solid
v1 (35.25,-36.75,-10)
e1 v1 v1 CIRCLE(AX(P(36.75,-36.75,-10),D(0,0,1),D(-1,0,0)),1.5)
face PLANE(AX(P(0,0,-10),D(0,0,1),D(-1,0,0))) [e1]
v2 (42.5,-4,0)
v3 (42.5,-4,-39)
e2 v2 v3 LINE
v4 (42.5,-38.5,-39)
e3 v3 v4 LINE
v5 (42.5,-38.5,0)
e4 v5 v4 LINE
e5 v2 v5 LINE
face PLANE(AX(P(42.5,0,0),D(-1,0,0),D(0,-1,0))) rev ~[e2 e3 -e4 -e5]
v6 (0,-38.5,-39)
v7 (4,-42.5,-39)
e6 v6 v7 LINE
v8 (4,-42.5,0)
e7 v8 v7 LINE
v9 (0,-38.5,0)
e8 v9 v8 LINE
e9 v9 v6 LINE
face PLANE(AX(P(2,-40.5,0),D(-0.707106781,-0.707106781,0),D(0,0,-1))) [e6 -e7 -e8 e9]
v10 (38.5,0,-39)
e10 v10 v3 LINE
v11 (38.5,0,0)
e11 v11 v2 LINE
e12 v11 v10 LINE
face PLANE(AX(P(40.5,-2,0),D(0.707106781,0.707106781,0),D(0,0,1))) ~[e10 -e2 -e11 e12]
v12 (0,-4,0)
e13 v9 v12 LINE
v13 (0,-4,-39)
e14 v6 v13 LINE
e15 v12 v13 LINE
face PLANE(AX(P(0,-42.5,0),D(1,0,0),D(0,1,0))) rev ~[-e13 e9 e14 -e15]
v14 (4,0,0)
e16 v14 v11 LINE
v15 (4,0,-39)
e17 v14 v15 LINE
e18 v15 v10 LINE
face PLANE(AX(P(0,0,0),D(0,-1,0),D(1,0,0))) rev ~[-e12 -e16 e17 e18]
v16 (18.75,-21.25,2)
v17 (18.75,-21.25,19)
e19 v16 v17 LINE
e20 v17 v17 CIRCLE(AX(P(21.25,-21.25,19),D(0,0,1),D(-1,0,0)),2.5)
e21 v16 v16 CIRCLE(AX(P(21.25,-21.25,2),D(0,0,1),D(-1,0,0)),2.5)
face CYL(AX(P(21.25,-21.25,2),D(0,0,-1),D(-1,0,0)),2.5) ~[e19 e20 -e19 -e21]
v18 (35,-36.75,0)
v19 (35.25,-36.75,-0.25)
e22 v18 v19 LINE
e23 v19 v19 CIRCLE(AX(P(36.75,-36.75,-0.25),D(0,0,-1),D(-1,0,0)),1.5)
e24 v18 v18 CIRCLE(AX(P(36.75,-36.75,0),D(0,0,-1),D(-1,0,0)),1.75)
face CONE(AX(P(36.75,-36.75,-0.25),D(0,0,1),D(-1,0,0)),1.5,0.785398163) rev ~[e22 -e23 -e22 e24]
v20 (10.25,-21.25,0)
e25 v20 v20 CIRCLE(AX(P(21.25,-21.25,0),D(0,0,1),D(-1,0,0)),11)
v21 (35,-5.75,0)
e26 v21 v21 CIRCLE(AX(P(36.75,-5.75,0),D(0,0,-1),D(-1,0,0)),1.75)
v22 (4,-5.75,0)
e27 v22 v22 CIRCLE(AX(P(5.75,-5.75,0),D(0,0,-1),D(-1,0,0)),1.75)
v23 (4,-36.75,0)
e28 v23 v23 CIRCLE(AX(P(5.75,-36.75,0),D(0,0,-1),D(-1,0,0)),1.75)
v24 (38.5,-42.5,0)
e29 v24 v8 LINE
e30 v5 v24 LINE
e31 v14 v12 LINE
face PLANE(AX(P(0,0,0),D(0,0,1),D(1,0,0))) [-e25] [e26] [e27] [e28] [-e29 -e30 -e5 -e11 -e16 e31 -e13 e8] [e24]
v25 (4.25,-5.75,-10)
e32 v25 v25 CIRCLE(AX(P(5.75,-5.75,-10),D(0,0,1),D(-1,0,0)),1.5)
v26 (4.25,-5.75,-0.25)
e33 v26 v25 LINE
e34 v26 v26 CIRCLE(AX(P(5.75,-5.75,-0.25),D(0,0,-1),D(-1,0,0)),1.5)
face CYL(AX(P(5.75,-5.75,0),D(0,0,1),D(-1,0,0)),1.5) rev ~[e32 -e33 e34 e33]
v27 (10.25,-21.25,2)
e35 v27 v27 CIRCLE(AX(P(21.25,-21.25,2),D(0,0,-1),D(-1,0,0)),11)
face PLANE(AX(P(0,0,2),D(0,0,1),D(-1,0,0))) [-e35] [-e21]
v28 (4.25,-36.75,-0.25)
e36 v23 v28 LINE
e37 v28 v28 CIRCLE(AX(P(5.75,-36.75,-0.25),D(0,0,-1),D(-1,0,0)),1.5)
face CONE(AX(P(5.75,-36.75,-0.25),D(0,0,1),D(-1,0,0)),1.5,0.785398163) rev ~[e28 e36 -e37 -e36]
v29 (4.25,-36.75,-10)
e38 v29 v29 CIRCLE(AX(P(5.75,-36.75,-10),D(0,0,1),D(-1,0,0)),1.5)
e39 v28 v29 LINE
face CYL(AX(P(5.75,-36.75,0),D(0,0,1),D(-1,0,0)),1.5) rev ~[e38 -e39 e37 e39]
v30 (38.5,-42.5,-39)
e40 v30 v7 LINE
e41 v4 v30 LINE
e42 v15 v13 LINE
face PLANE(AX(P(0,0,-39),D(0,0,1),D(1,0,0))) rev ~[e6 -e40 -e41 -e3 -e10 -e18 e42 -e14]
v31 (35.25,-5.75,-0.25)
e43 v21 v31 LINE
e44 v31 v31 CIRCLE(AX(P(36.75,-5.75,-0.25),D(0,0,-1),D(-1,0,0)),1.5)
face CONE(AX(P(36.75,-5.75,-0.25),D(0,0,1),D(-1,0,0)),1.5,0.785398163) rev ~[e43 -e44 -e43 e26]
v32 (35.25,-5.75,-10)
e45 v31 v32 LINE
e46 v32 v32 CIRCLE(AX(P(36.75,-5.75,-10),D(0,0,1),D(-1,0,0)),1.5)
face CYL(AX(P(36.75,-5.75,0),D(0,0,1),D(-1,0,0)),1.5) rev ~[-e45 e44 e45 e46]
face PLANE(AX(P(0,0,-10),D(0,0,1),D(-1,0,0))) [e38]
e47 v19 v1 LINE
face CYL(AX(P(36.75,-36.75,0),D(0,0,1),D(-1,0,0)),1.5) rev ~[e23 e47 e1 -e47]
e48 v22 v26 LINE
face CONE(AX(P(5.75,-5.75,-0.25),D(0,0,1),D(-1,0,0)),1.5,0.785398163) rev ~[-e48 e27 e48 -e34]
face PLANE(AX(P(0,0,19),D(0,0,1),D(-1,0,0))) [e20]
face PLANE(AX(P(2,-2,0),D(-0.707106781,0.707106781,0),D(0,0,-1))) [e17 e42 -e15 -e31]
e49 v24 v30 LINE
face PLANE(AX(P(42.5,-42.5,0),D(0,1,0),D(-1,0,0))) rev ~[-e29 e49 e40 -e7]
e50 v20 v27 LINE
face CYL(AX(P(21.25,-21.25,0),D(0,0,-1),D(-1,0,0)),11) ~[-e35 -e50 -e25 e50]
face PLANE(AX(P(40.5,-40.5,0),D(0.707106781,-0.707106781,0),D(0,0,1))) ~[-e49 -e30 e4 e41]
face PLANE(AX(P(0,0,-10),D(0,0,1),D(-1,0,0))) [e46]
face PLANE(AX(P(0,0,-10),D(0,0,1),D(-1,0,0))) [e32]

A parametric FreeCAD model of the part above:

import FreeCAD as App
import Part
import Sketcher

V = App.Vector
Q = App.Units.Quantity


def edges_at(feature, points):
    """Names of the edges that pass closest to the given points."""
    edges = feature.Shape.Edges
    near = lambda p: min(range(len(edges)), key=lambda i: edges[i].distToShape(Part.Vertex(*p))[0])
    return sorted({f"Edge{near(p) + 1}" for p in points})


def add_polygon(sketch, points):
    """Adds a closed chain of lines whose ends are joined by coincident constraints."""
    first, n = sketch.GeometryCount, len(points)
    for a, b in zip(points, points[1:] + points[:1]):
        sketch.addGeometry(Part.LineSegment(App.Vector(*a, 0), App.Vector(*b, 0)), False)
    for i in range(n):
        sketch.addConstraint(Sketcher.Constraint("Coincident", first + i, 2, first + (i + 1) % n, 1))

doc = App.newDocument("Part")
body = doc.addObject("PartDesign::Body", "Body")

# Sketch on XY plane
sketch1 = body.newObject("Sketcher::SketchObject", "Sketch")
sketch1.AttachmentSupport = (doc.getObject("XY_Plane"), [""])
sketch1.MapMode = "FlatFace"
add_polygon(sketch1, [(42.5, 0), (0, 0), (0, -42.5), (42.5, -42.5)])  # lines 0-3
sketch1.addConstraint(Sketcher.Constraint("Horizontal", 0))
sketch1.addConstraint(Sketcher.Constraint("Vertical", 1))
sketch1.addConstraint(Sketcher.Constraint("Horizontal", 2))
sketch1.addConstraint(Sketcher.Constraint("Vertical", 3))
sketch1.addConstraint(Sketcher.Constraint("Coincident", 0, 2, -1, 1))
sketch1.addConstraint(Sketcher.Constraint("Equal", 2, 1))
sketch1.addConstraint(Sketcher.Constraint("DistanceX", 0, 2, 0, 1, Q("42.5 mm")))
pad1 = body.newObject("PartDesign::Pad", "Pad")
pad1.Profile = sketch1
pad1.Length = 39
pad1.Reversed = True

# Sketch on XY plane
sketch2 = body.newObject("Sketcher::SketchObject", "Sketch001")
sketch2.AttachmentSupport = (doc.getObject("XY_Plane"), [""])
sketch2.MapMode = "FlatFace"
sketch2.addGeometry(Part.Circle(V(5.75, -36.75, 0), V(0, 0, 1), 1.5), False)
sketch2.addGeometry(Part.Circle(V(36.75, -36.75, 0), V(0, 0, 1), 1.5), False)
sketch2.addGeometry(Part.Circle(V(5.75, -5.75, 0), V(0, 0, 1), 1.5), False)
sketch2.addGeometry(Part.Circle(V(36.75, -5.75, 0), V(0, 0, 1), 1.5), False)
sketch2.addConstraint(Sketcher.Constraint("Equal", 0, 1))
sketch2.addConstraint(Sketcher.Constraint("Equal", 1, 2))
sketch2.addConstraint(Sketcher.Constraint("Equal", 2, 3))
sketch2.addConstraint(Sketcher.Constraint("Horizontal", 0, 3, 1, 3))
sketch2.addConstraint(Sketcher.Constraint("Horizontal", 2, 3, 3, 3))
sketch2.addConstraint(Sketcher.Constraint("Vertical", 0, 3, 2, 3))
sketch2.addConstraint(Sketcher.Constraint("Vertical", 1, 3, 3, 3))
sketch2.addConstraint(Sketcher.Constraint("Diameter", 0, Q("3 mm")))
sketch2.addConstraint(Sketcher.Constraint("DistanceX", 0, 3, 1, 3, Q("31 mm")))
sketch2.addConstraint(Sketcher.Constraint("DistanceY", 0, 3, 2, 3, Q("31 mm")))
sketch2.addConstraint(Sketcher.Constraint("DistanceX", -1, 1, 0, 3, Q("5.75 mm")))
sketch2.addConstraint(Sketcher.Constraint("DistanceY", 0, 3, -1, 1, Q("36.75 mm")))
pocket1 = body.newObject("PartDesign::Pocket", "Pocket")
pocket1.Profile = sketch2
pocket1.Length = 10
doc.recompute()

chamfer = body.newObject("PartDesign::Chamfer", "Chamfer")
chamfer.Base = (pocket1, edges_at(pocket1, [
    (7.149, -6.292, 0),
    (38.148, -6.292, 0),
    (38.148, -37.292, 0),
    (7.149, -37.292, 0),
]))
chamfer.Size = 0.25
doc.recompute()

chamfer2 = body.newObject("PartDesign::Chamfer", "Chamfer001")
chamfer2.Base = (chamfer, edges_at(chamfer, [
    (42.5, 0, -19.5),
    (0, 0, -19.5),
    (0, -42.5, -19.5),
    (42.5, -42.5, -19.5),
]))
chamfer2.Size = 4

# Sketch on XY plane
sketch3 = body.newObject("Sketcher::SketchObject", "Sketch002")
sketch3.AttachmentSupport = (doc.getObject("XY_Plane"), [""])
sketch3.MapMode = "FlatFace"
sketch3.addGeometry(Part.Circle(V(21.25, -21.25, 0), V(0, 0, 1), 11), False)
sketch3.addConstraint(Sketcher.Constraint("Diameter", 0, Q("22 mm")))
sketch3.addConstraint(Sketcher.Constraint("DistanceX", -1, 1, 0, 3, Q("21.25 mm")))
sketch3.addConstraint(Sketcher.Constraint("DistanceY", 0, 3, -1, 1, Q("21.25 mm")))
pad2 = body.newObject("PartDesign::Pad", "Pad001")
pad2.Profile = sketch3
pad2.Length = 2

# Sketch on XY plane
sketch4 = body.newObject("Sketcher::SketchObject", "Sketch003")
sketch4.AttachmentSupport = (doc.getObject("XY_Plane"), [""])
sketch4.MapMode = "FlatFace"
sketch4.AttachmentOffset = App.Placement(V(0, 0, 2), App.Rotation())
sketch4.addGeometry(Part.Circle(V(21.25, -21.25, 0), V(0, 0, 1), 2.5), False)
sketch4.addConstraint(Sketcher.Constraint("Diameter", 0, Q("5 mm")))
sketch4.addConstraint(Sketcher.Constraint("DistanceX", -1, 1, 0, 3, Q("21.25 mm")))
sketch4.addConstraint(Sketcher.Constraint("DistanceY", 0, 3, -1, 1, Q("21.25 mm")))
pad3 = body.newObject("PartDesign::Pad", "Pad002")
pad3.Profile = sketch4
pad3.Length = 17

doc.recompute()
